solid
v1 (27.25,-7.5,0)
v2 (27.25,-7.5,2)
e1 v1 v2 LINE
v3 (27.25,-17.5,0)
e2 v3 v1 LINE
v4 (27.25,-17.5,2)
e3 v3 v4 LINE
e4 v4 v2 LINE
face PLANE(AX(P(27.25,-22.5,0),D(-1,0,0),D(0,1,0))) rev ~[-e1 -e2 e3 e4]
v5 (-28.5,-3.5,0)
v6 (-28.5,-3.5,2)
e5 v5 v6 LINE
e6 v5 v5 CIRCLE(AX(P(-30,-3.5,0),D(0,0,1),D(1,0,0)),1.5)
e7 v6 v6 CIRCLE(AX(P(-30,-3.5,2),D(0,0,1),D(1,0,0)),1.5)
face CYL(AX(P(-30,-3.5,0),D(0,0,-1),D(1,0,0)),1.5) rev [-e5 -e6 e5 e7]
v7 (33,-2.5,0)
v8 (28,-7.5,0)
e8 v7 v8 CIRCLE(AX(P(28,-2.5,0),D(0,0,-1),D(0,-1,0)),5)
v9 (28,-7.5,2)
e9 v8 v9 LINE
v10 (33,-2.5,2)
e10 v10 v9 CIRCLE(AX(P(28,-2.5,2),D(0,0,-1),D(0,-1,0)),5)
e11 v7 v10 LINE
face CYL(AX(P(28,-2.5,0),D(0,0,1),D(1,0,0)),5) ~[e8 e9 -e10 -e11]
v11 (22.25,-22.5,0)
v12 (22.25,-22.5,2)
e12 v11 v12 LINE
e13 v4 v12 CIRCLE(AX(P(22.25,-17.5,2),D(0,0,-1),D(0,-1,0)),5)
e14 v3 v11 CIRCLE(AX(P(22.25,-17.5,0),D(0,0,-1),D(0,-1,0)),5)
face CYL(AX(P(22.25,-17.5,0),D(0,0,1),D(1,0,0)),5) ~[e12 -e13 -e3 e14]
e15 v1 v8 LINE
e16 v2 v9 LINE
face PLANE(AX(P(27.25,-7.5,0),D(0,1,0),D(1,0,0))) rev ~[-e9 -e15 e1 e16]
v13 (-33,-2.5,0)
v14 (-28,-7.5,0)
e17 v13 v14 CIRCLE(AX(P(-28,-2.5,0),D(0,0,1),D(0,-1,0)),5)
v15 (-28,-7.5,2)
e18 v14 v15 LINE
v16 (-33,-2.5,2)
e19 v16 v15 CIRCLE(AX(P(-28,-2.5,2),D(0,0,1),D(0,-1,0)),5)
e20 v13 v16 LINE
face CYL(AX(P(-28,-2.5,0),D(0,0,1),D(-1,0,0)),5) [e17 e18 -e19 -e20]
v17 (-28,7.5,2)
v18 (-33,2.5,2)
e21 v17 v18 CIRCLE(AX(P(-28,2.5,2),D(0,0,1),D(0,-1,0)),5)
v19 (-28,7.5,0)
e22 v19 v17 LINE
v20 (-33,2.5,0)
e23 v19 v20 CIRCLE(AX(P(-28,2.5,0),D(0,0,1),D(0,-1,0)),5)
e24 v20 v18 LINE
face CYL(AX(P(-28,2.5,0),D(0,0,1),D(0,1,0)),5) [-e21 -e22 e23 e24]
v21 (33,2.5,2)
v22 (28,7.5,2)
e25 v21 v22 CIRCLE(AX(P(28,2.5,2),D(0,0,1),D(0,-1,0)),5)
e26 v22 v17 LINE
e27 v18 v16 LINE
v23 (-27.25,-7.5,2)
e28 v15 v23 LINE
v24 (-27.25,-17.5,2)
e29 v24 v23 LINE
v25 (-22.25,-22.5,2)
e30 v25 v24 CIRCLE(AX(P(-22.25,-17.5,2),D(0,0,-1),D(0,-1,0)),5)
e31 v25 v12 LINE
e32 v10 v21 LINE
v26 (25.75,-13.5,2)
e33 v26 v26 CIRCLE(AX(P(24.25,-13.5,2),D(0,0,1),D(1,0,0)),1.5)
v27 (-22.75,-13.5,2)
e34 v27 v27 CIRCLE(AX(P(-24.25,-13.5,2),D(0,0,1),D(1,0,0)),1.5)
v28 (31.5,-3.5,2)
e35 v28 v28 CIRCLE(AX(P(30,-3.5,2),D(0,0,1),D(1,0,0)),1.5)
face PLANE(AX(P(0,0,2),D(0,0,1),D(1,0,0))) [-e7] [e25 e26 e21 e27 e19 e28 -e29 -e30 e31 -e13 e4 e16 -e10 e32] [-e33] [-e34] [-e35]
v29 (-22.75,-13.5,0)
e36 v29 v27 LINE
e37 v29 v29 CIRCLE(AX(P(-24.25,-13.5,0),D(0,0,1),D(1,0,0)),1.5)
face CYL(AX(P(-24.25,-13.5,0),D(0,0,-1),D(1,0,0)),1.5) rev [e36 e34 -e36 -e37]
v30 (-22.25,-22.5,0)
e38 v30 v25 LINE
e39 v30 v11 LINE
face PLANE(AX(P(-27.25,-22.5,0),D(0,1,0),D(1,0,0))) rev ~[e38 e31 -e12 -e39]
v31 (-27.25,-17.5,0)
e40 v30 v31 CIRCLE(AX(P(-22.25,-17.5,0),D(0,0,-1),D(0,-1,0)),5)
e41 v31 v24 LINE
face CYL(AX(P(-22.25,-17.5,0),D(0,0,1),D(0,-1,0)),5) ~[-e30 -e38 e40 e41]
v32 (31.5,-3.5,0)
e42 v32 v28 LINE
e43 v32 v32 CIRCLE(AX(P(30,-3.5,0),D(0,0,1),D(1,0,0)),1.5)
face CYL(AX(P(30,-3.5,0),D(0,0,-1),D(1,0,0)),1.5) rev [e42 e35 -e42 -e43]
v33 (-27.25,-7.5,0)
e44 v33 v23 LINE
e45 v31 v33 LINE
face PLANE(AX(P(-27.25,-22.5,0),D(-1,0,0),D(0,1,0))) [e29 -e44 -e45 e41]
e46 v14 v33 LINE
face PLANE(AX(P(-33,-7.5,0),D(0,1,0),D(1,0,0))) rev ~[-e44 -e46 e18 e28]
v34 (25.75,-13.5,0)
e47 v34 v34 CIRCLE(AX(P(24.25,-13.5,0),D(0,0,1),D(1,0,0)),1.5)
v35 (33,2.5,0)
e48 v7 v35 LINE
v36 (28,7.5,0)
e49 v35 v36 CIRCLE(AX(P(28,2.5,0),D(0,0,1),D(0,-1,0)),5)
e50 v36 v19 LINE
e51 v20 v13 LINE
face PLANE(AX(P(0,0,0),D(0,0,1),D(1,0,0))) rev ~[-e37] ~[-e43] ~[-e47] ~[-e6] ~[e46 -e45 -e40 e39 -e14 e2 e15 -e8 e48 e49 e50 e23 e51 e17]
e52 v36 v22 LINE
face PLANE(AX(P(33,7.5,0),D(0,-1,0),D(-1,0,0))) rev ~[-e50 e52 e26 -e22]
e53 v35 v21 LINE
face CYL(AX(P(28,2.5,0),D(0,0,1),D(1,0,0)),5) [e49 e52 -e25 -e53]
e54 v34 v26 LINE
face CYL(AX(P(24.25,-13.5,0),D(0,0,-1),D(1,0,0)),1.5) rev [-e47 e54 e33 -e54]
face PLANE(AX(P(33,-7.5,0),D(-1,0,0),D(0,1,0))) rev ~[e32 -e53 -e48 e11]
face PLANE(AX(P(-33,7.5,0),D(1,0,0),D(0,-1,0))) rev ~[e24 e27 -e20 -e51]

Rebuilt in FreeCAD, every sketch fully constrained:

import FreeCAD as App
import Part
import Sketcher
from FreeCAD import Vector
Q = App.Units.Quantity


def edges_at(feature, points):
    """Names of the edges that pass closest to the given points."""
    edges = feature.Shape.Edges
    near = lambda p: min(range(len(edges)), key=lambda i: edges[i].distToShape(Part.Vertex(*p))[0])
    return sorted({f"Edge{near(p) + 1}" for p in points})

doc = App.newDocument("Part")
params = doc.addObject("Spreadsheet::Sheet", "Params")
for row, (alias, value) in enumerate([
    ("sketch1_diameter", "3 mm"),
    ("sketch1_width", "66 mm"),
    ("sketch1_height", "15 mm"),
    ("sketch1_width2", "54.5 mm"),
    ("pad1_length", "2 mm"),
    ("fillet_radius", "5 mm"),
], start=1):
    params.set(f"A{row}", alias)
    params.set(f"B{row}", "=" + value)
    params.setAlias(f"B{row}", alias)

body = doc.addObject("PartDesign::Body", "Body")

sketch1 = doc.addObject("Sketcher::SketchObject", "Sketch")
body.addObject(sketch1)
sketch1.AttachmentSupport = (doc.XY_Plane, [""])
sketch1.MapMode = "FlatFace"
sketch1.addGeometry([
    Part.LineSegment(Vector(33, -7.5, 0), Vector(33, 7.5, 0)),
    Part.LineSegment(Vector(33, 7.5, 0), Vector(-33, 7.5, 0)),
    Part.LineSegment(Vector(-33, 7.5, 0), Vector(-33, -7.5, 0)),
    Part.LineSegment(Vector(-33, -7.5, 0), Vector(-27.25, -7.5, 0)),
    Part.LineSegment(Vector(-27.25, -7.5, 0), Vector(-27.25, -22.5, 0)),
    Part.LineSegment(Vector(-27.25, -22.5, 0), Vector(27.25, -22.5, 0)),
    Part.LineSegment(Vector(27.25, -22.5, 0), Vector(27.25, -7.5, 0)),
    Part.LineSegment(Vector(27.25, -7.5, 0), Vector(33, -7.5, 0)),
    Part.Circle(Vector(-24.25, -13.5, 0), Vector(0, 0, 1), 1.5),
    Part.Circle(Vector(24.25, -13.5, 0), Vector(0, 0, 1), 1.5),
    Part.Circle(Vector(-30, -3.5, 0), Vector(0, 0, 1), 1.5),
    Part.Circle(Vector(30, -3.5, 0), Vector(0, 0, 1), 1.5),
], False)
sketch1.addConstraint([
    Sketcher.Constraint("Coincident", 0, 2, 1, 1),
    Sketcher.Constraint("Coincident", 1, 2, 2, 1),
    Sketcher.Constraint("Coincident", 2, 2, 3, 1),
    Sketcher.Constraint("Coincident", 3, 2, 4, 1),
    Sketcher.Constraint("Coincident", 4, 2, 5, 1),
    Sketcher.Constraint("Coincident", 5, 2, 6, 1),
    Sketcher.Constraint("Coincident", 6, 2, 7, 1),
    Sketcher.Constraint("Coincident", 7, 2, 0, 1),
    Sketcher.Constraint("Vertical", 0),
    Sketcher.Constraint("Horizontal", 1),
    Sketcher.Constraint("Vertical", 2),
    Sketcher.Constraint("Horizontal", 3),
    Sketcher.Constraint("Vertical", 4),
    Sketcher.Constraint("Horizontal", 5),
    Sketcher.Constraint("Vertical", 6),
    Sketcher.Constraint("Horizontal", 7),
    Sketcher.Constraint("Equal", 8, 9),
    Sketcher.Constraint("Equal", 9, 10),
    Sketcher.Constraint("Equal", 10, 11),
    Sketcher.Constraint("Symmetric", 0, 2, 2, 2, -1, 1),
    Sketcher.Constraint("Symmetric", 8, 3, 9, 3, -2),
    Sketcher.Constraint("Symmetric", 10, 3, 11, 3, -2),
    Sketcher.Constraint("Symmetric", 3, 2, 6, 2, -2),
    Sketcher.Constraint("Equal", 2, 4),
    Sketcher.Constraint("Diameter", 8, Q("3 mm")),
    Sketcher.Constraint("DistanceX", 1, 2, 1, 1, Q("66 mm")),
    Sketcher.Constraint("DistanceY", 0, 1, 0, 2, Q("15 mm")),
    Sketcher.Constraint("DistanceX", 5, 1, 5, 2, Q("54.5 mm")),
    Sketcher.Constraint("DistanceX", 10, 3, -1, 1, Q("30 mm")),
    Sketcher.Constraint("DistanceY", 8, 3, 10, 3, Q("10 mm")),
    Sketcher.Constraint("DistanceY", 11, 3, 0, 2, Q("11 mm")),
    Sketcher.Constraint("DistanceX", 3, 2, 8, 3, Q("3 mm")),
])
sketch1.setExpression("Constraints[24]", "Params.sketch1_diameter")
sketch1.setExpression("Constraints[25]", "Params.sketch1_width")
sketch1.setExpression("Constraints[26]", "Params.sketch1_height")
sketch1.setExpression("Constraints[27]", "Params.sketch1_width2")
pad1 = doc.addObject("PartDesign::Pad", "Pad")
body.addObject(pad1)
pad1.Profile = sketch1
pad1.setExpression("Length", "Params.pad1_length")
doc.recompute()

fillet = doc.addObject("PartDesign::Fillet", "Fillet")
body.addObject(fillet)
fillet.Base = (pad1, edges_at(pad1, [
    (-33, 7.5, 1),
    (33, 7.5, 1),
    (27.25, -22.5, 1),
    (-27.25, -22.5, 1),
    (33, -7.5, 1),
    (-33, -7.5, 1),
]))
fillet.setExpression("Radius", "Params.fillet_radius")

doc.recompute()
